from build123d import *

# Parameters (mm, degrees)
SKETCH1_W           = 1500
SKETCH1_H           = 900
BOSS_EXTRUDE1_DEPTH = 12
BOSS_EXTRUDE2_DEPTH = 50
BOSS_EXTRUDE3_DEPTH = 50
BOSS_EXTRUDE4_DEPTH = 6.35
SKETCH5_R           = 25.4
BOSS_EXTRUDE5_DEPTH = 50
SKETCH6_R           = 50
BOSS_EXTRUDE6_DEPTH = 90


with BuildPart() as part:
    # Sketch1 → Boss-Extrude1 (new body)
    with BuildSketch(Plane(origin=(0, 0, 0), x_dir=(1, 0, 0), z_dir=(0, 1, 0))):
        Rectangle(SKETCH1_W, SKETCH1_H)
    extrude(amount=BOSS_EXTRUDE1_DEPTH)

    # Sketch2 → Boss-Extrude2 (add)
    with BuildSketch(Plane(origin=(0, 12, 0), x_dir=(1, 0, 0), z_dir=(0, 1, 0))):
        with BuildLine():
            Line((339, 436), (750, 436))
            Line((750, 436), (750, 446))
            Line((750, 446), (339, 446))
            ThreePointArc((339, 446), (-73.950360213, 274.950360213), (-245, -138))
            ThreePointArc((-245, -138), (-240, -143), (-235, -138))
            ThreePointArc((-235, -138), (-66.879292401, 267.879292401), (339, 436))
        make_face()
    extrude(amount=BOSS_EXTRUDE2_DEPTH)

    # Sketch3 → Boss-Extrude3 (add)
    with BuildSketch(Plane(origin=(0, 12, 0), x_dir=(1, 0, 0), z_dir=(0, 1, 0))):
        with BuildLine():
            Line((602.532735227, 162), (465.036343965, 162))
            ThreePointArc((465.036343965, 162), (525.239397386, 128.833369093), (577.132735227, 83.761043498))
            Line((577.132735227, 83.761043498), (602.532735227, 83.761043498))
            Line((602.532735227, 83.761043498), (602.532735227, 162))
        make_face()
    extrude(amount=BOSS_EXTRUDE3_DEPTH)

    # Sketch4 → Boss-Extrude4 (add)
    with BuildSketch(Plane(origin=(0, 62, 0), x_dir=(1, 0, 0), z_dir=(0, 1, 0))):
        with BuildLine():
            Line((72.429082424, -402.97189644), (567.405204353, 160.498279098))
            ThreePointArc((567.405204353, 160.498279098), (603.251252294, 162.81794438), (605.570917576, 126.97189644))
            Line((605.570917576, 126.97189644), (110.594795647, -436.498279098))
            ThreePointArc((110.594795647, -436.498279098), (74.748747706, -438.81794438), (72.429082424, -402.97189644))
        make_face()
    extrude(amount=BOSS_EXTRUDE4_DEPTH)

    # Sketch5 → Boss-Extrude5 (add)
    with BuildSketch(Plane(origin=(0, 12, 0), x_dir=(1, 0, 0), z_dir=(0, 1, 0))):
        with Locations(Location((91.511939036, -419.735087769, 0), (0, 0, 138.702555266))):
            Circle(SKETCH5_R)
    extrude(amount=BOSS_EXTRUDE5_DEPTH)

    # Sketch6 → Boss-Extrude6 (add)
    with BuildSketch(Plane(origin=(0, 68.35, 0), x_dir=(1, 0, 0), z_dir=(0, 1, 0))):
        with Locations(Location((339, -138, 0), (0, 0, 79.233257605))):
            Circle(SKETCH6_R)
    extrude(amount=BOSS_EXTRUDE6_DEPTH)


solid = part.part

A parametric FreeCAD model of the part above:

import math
import FreeCAD as App
import Part
import Sketcher
from FreeCAD import Vector

doc = App.newDocument("Part")
body = doc.addObject("PartDesign::Body", "Body")

# Sketch on XZ plane
sketch1 = body.newObject("Sketcher::SketchObject", "Sketch")
sketch1.AttachmentSupport = (doc.getObject("XZ_Plane"), [""])
sketch1.MapMode = "FlatFace"
sketch1.addGeometry(Part.LineSegment(Vector(-750, -450, 0), Vector(-750, 450, 0)), False)
sketch1.addGeometry(Part.LineSegment(Vector(-750, 450, 0), Vector(750, 450, 0)), False)
sketch1.addGeometry(Part.LineSegment(Vector(750, 450, 0), Vector(750, -450, 0)), False)
sketch1.addGeometry(Part.LineSegment(Vector(750, -450, 0), Vector(-750, -450, 0)), False)
sketch1.addConstraint(Sketcher.Constraint("Coincident", 0, 2, 1, 1))
sketch1.addConstraint(Sketcher.Constraint("Coincident", 1, 2, 2, 1))
sketch1.addConstraint(Sketcher.Constraint("Coincident", 2, 2, 3, 1))
sketch1.addConstraint(Sketcher.Constraint("Coincident", 3, 2, 0, 1))
sketch1.addConstraint(Sketcher.Constraint("Vertical", 0))
sketch1.addConstraint(Sketcher.Constraint("Horizontal", 1))
sketch1.addConstraint(Sketcher.Constraint("Vertical", 2))
sketch1.addConstraint(Sketcher.Constraint("Horizontal", 3))
sketch1.addConstraint(Sketcher.Constraint("Symmetric", 0, 2, 2, 2, -1, 1))
sketch1.addConstraint(Sketcher.Constraint("DistanceX", 1, 1, 1, 2, 1500.0))
sketch1.addConstraint(Sketcher.Constraint("DistanceY", 0, 1, 0, 2, 900.0))
pad1 = body.newObject("PartDesign::Pad", "Pad")
pad1.Profile = sketch1
pad1.Length = 12
pad1.Reversed = True

# Sketch on XZ plane
sketch2 = body.newObject("Sketcher::SketchObject", "Sketch001")
sketch2.AttachmentSupport = (doc.getObject("XZ_Plane"), [""])
sketch2.MapMode = "FlatFace"
sketch2.AttachmentOffset = App.Placement(Vector(0, 0, -12), App.Rotation())
sketch2.addGeometry(Part.LineSegment(Vector(339, -436, 0), Vector(750, -436, 0)), False)
sketch2.addGeometry(Part.LineSegment(Vector(750, -436, 0), Vector(750, -446, 0)), False)
sketch2.addGeometry(Part.LineSegment(Vector(750, -446, 0), Vector(339, -446, 0)), False)
sketch2.addGeometry(Part.ArcOfCircle(Part.Circle(Vector(339, 138, 0), Vector(0, 0, 1), 584), math.radians(180), math.radians(270)), False)
sketch2.addGeometry(Part.ArcOfCircle(Part.Circle(Vector(-240, 138, 0), Vector(0, 0, 1), 5), math.radians(0), math.radians(180)), False)
sketch2.addGeometry(Part.ArcOfCircle(Part.Circle(Vector(339, 138, 0), Vector(0, 0, 1), 574), math.radians(180), math.radians(270)), False)
sketch2.addConstraint(Sketcher.Constraint("Coincident", 0, 2, 1, 1))
sketch2.addConstraint(Sketcher.Constraint("Coincident", 1, 2, 2, 1))
sketch2.addConstraint(Sketcher.Constraint("Tangent", 2, 2, 3, 2))
sketch2.addConstraint(Sketcher.Constraint("Tangent", 3, 1, 4, 2))
sketch2.addConstraint(Sketcher.Constraint("Tangent", 4, 1, 5, 1))
sketch2.addConstraint(Sketcher.Constraint("Tangent", 5, 2, 0, 1))
sketch2.addConstraint(Sketcher.Constraint("Horizontal", 0))
sketch2.addConstraint(Sketcher.Constraint("Vertical", 1))
sketch2.addConstraint(Sketcher.Constraint("Horizontal", 2))
sketch2.addConstraint(Sketcher.Constraint("Coincident", 5, 3, 3, 3))
sketch2.addConstraint(Sketcher.Constraint("Horizontal", 3, 3, 4, 3))
sketch2.addConstraint(Sketcher.Constraint("Radius", 3, 584.0))
sketch2.addConstraint(Sketcher.Constraint("Radius", 4, 5.0))
sketch2.addConstraint(Sketcher.Constraint("DistanceX", 0, 1, 0, 2, 411.0))
sketch2.addConstraint(Sketcher.Constraint("DistanceX", -1, 1, 3, 3, 339.0))
sketch2.addConstraint(Sketcher.Constraint("DistanceY", -1, 1, 3, 3, 138.0))
pad2 = body.newObject("PartDesign::Pad", "Pad001")
pad2.Profile = sketch2
pad2.Length = 50
pad2.Reversed = True

# Sketch on XZ plane
sketch3 = body.newObject("Sketcher::SketchObject", "Sketch002")
sketch3.AttachmentSupport = (doc.getObject("XZ_Plane"), [""])
sketch3.MapMode = "FlatFace"
sketch3.AttachmentOffset = App.Placement(Vector(0, 0, -12), App.Rotation())
sketch3.addGeometry(Part.LineSegment(Vector(603, -162, 0), Vector(465, -162, 0)), False)
sketch3.addGeometry(Part.ArcOfCircle(Part.Circle(Vector(339, 138, 0), Vector(0, 0, 1), 325), math.radians(-67), math.radians(-43)), False)
sketch3.addGeometry(Part.LineSegment(Vector(577, -84, 0), Vector(603, -84, 0)), False)
sketch3.addGeometry(Part.LineSegment(Vector(603, -84, 0), Vector(603, -162, 0)), False)
sketch3.addConstraint(Sketcher.Constraint("Coincident", 0, 2, 1, 1))
sketch3.addConstraint(Sketcher.Constraint("Coincident", 1, 2, 2, 1))
sketch3.addConstraint(Sketcher.Constraint("Coincident", 2, 2, 3, 1))
sketch3.addConstraint(Sketcher.Constraint("Coincident", 3, 2, 0, 1))
sketch3.addConstraint(Sketcher.Constraint("Horizontal", 0))
sketch3.addConstraint(Sketcher.Constraint("Horizontal", 2))
sketch3.addConstraint(Sketcher.Constraint("Vertical", 3))
sketch3.addConstraint(Sketcher.Constraint("Radius", 1, 325.4))
sketch3.addConstraint(Sketcher.Constraint("DistanceX", 2, 1, 2, 2, 25.4))
sketch3.addConstraint(Sketcher.Constraint("DistanceX", -1, 1, 1, 3, 339.0))
sketch3.addConstraint(Sketcher.Constraint("DistanceY", -1, 1, 1, 3, 138.0))
sketch3.addConstraint(Sketcher.Constraint("DistanceY", 0, 2, -1, 1, 162.0))
sketch3.addConstraint(Sketcher.Constraint("DistanceX", 0, 2, 0, 1, 137.496391))
pad3 = body.newObject("PartDesign::Pad", "Pad002")
pad3.Profile = sketch3
pad3.Length = 50
pad3.Reversed = True

# Sketch on XZ plane
sketch4 = body.newObject("Sketcher::SketchObject", "Sketch003")
sketch4.AttachmentSupport = (doc.getObject("XZ_Plane"), [""])
sketch4.MapMode = "FlatFace"
sketch4.AttachmentOffset = App.Placement(Vector(0, 0, -62), App.Rotation())
sketch4.addGeometry(Part.LineSegment(Vector(567, -160, 0), Vector(72, 403, 0)), False)
sketch4.addGeometry(Part.ArcOfCircle(Part.Circle(Vector(92, 420, 0), Vector(0, 0, 1), 25), math.radians(41), math.radians(221)), False)
sketch4.addGeometry(Part.LineSegment(Vector(111, 436, 0), Vector(606, -127, 0)), False)
sketch4.addGeometry(Part.ArcOfCircle(Part.Circle(Vector(586, -144, 0), Vector(0, 0, 1), 25), math.radians(-139), math.radians(41)), False)
sketch4.addConstraint(Sketcher.Constraint("Tangent", 0, 2, 1, 2))
sketch4.addConstraint(Sketcher.Constraint("Tangent", 1, 1, 2, 1))
sketch4.addConstraint(Sketcher.Constraint("Tangent", 2, 2, 3, 2))
sketch4.addConstraint(Sketcher.Constraint("Tangent", 3, 1, 0, 1))
sketch4.addConstraint(Sketcher.Constraint("Equal", 1, 3))
sketch4.addConstraint(Sketcher.Constraint("Radius", 1, 25.4))
sketch4.addConstraint(Sketcher.Constraint("Distance", 0, 750.0))
sketch4.addConstraint(Sketcher.Constraint("DistanceX", -1, 1, 1, 3, 91.511939))
sketch4.addConstraint(Sketcher.Constraint("DistanceX", -1, 1, 3, 3, 586.488061))
sketch4.addConstraint(Sketcher.Constraint("DistanceY", -1, 1, 1, 1, 436.498279))
pad4 = body.newObject("PartDesign::Pad", "Pad003")
pad4.Profile = sketch4
pad4.Length = 6.35
pad4.Reversed = True

# Sketch on XZ plane
sketch5 = body.newObject("Sketcher::SketchObject", "Sketch004")
sketch5.AttachmentSupport = (doc.getObject("XZ_Plane"), [""])
sketch5.MapMode = "FlatFace"
sketch5.AttachmentOffset = App.Placement(Vector(0, 0, -12), App.Rotation())
sketch5.addGeometry(Part.Circle(Vector(92, 420, 0), Vector(0, 0, 1), 25), False)
sketch5.addConstraint(Sketcher.Constraint("Diameter", 0, 50.8))
sketch5.addConstraint(Sketcher.Constraint("DistanceX", -1, 1, 0, 3, 91.511939))
sketch5.addConstraint(Sketcher.Constraint("DistanceY", -1, 1, 0, 3, 419.735088))
pad5 = body.newObject("PartDesign::Pad", "Pad004")
pad5.Profile = sketch5
pad5.Length = 50
pad5.Reversed = True

# Sketch on XZ plane
sketch6 = body.newObject("Sketcher::SketchObject", "Sketch005")
sketch6.AttachmentSupport = (doc.getObject("XZ_Plane"), [""])
sketch6.MapMode = "FlatFace"
sketch6.AttachmentOffset = App.Placement(Vector(0, 0, -68.35), App.Rotation())
sketch6.addGeometry(Part.Circle(Vector(339, 138, 0), Vector(0, 0, 1), 50), False)
sketch6.addConstraint(Sketcher.Constraint("Diameter", 0, 100.0))
sketch6.addConstraint(Sketcher.Constraint("DistanceX", -1, 1, 0, 3, 339.0))
sketch6.addConstraint(Sketcher.Constraint("DistanceY", -1, 1, 0, 3, 138.0))
pad6 = body.newObject("PartDesign::Pad", "Pad005")
pad6.Profile = sketch6
pad6.Length = 90
pad6.Reversed = True

doc.recompute()
